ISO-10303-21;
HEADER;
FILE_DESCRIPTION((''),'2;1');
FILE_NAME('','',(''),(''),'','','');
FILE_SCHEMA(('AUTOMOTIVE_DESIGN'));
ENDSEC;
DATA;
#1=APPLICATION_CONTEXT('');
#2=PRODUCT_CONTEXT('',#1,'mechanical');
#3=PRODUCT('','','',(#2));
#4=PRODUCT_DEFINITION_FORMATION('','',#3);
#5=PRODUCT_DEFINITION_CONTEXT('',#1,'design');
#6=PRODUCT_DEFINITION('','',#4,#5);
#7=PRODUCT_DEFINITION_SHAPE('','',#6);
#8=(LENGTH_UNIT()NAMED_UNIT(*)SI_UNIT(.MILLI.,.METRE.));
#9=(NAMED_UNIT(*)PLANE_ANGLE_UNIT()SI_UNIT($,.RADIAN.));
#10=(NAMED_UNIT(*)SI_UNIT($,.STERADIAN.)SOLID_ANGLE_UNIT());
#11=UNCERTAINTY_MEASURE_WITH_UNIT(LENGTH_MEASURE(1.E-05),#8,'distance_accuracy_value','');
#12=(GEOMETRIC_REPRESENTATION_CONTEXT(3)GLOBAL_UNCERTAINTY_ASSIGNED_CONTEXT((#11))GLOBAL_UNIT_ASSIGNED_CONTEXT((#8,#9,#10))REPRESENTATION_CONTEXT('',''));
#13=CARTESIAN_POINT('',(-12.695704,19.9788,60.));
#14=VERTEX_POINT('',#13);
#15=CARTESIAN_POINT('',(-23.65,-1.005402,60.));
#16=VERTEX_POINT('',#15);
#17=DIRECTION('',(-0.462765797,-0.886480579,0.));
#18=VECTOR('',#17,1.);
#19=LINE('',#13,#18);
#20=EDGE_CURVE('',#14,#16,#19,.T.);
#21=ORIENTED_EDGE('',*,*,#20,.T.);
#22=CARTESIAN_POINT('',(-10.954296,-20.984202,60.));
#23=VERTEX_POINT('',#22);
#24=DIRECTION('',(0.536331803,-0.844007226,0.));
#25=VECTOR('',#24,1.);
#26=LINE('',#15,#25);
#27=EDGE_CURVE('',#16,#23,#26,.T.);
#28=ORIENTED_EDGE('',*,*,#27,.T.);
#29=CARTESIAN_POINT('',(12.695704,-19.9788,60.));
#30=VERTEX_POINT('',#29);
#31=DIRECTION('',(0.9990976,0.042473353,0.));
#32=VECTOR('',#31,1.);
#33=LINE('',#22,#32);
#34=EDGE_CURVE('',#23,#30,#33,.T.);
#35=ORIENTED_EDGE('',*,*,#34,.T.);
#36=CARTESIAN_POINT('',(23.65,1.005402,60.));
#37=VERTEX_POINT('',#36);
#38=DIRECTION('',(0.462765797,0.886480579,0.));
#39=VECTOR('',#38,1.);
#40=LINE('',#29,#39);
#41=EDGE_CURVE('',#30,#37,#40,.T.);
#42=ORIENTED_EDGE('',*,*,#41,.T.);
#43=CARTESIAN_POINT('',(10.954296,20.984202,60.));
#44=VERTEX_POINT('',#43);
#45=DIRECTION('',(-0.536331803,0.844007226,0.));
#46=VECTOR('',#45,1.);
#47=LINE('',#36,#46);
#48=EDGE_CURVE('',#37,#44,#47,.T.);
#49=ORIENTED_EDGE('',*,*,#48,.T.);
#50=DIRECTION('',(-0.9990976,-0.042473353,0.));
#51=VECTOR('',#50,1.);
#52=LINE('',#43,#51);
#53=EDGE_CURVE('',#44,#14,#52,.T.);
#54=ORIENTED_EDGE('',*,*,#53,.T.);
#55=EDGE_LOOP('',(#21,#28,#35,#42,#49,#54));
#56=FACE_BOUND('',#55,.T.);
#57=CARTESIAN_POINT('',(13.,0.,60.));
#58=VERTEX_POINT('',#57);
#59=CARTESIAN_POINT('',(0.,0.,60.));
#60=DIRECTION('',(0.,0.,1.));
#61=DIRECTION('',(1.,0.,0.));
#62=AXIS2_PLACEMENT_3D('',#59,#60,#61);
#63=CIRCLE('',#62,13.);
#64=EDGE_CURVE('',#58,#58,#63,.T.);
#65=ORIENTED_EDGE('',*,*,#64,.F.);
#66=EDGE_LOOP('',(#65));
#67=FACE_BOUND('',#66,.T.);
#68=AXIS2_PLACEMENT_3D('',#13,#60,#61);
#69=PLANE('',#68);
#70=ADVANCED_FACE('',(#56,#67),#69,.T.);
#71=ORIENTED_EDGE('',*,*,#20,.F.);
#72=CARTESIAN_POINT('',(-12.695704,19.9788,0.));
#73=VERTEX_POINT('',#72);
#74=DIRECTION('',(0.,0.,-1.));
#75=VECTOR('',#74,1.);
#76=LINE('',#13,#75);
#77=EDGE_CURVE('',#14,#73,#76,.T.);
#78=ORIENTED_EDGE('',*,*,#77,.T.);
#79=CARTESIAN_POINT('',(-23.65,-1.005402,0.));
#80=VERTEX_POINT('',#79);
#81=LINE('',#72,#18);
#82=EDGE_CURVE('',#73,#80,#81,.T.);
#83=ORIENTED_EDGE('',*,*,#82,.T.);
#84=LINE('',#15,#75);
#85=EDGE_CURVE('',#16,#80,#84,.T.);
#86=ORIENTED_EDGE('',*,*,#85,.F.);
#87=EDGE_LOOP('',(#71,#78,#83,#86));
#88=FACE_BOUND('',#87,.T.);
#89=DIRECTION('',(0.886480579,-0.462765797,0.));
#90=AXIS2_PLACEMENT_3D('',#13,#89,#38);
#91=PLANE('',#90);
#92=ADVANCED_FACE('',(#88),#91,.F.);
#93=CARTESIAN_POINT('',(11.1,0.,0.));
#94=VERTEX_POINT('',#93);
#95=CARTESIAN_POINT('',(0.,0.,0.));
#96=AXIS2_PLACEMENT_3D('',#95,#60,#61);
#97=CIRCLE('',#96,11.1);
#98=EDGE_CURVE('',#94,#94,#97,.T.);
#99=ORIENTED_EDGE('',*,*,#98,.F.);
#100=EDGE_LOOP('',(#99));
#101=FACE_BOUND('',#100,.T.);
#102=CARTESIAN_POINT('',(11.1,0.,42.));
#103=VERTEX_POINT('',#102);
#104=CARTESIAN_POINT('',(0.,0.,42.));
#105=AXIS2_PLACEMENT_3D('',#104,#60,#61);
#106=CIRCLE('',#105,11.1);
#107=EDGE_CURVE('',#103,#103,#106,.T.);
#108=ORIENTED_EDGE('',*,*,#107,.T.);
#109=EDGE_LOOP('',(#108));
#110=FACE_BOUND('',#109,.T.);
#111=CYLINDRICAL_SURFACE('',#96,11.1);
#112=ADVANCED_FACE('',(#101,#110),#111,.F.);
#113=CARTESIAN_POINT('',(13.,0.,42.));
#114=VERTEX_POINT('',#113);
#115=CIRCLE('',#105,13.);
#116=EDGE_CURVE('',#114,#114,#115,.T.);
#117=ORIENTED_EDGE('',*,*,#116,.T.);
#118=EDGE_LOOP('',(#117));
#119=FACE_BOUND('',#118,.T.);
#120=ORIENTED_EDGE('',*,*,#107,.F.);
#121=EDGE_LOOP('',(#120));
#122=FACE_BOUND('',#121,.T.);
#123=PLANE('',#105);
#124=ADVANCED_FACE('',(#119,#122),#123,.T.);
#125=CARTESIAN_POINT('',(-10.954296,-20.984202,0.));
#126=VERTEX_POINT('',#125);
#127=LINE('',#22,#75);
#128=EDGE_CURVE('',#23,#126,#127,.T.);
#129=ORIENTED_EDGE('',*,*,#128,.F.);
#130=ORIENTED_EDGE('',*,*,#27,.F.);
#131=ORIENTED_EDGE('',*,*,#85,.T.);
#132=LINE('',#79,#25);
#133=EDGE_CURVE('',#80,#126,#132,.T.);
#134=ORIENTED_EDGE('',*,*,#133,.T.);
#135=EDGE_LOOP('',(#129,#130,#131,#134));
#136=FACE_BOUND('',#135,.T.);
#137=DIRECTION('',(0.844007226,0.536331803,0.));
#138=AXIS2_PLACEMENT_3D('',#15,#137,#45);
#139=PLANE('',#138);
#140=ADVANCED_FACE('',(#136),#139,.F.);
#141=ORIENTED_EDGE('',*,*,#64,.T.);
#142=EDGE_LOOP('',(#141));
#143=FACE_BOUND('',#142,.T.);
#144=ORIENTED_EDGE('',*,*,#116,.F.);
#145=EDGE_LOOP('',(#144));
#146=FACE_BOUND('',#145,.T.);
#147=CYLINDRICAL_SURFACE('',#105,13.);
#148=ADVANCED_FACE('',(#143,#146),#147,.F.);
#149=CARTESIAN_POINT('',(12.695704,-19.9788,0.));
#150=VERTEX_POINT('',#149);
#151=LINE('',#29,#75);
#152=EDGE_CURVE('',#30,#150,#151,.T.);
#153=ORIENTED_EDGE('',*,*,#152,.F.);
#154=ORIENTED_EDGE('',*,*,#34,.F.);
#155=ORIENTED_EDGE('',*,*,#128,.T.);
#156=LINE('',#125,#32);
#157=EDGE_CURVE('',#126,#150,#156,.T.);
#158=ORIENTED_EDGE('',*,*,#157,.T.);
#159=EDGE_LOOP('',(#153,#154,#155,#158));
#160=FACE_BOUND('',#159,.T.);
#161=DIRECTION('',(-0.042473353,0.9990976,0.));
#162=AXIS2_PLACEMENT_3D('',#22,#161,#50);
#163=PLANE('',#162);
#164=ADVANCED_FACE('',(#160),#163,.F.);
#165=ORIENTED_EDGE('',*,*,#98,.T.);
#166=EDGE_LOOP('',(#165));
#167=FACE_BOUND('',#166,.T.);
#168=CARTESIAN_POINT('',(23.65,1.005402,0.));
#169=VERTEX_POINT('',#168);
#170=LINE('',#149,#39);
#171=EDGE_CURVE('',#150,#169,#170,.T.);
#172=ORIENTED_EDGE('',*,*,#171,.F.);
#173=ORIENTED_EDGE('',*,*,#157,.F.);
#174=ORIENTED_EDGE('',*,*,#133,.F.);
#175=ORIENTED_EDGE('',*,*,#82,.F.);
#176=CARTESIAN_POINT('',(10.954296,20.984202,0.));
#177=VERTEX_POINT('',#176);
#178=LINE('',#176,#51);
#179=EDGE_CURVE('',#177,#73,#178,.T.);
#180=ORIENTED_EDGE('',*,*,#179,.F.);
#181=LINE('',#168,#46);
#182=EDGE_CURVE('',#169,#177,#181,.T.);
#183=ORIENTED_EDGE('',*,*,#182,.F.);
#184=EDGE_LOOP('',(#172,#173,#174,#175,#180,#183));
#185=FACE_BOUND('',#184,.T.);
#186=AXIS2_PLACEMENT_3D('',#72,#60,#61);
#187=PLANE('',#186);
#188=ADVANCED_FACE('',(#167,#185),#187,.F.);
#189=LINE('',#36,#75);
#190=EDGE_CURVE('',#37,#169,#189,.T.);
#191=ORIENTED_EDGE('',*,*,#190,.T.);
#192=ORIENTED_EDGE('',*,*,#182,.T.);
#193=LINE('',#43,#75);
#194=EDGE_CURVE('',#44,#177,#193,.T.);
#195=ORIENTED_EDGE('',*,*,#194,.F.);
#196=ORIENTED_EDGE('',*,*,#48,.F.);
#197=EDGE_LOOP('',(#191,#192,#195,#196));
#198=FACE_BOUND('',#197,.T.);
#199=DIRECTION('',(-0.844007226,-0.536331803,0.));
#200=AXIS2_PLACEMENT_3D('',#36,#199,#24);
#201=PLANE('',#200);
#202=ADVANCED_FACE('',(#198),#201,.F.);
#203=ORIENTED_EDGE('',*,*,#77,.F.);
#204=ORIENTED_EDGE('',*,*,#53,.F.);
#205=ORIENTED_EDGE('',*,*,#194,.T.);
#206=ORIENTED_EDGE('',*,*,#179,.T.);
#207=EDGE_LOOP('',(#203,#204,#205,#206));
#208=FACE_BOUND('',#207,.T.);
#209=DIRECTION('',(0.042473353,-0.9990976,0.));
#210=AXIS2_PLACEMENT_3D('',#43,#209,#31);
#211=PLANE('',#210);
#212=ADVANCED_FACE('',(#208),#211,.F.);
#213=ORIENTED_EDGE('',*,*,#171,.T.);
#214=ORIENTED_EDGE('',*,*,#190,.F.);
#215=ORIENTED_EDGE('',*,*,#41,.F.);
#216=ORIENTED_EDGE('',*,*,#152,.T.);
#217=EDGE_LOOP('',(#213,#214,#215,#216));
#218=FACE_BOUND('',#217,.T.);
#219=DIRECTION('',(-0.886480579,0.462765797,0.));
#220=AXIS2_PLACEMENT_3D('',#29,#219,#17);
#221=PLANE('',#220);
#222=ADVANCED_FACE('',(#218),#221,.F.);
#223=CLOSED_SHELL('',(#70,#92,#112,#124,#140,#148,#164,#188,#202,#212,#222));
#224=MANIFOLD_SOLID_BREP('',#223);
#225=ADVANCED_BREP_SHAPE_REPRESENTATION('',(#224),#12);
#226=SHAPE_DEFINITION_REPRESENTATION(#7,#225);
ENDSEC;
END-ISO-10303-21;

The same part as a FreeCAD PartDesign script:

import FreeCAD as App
import Part
import Sketcher
from FreeCAD import Vector


def add_polygon(sketch, points):
    """Adds a closed chain of lines whose ends are joined by coincident constraints."""
    first, n = sketch.GeometryCount, len(points)
    for a, b in zip(points, points[1:] + points[:1]):
        sketch.addGeometry(Part.LineSegment(App.Vector(*a, 0), App.Vector(*b, 0)), False)
    for i in range(n):
        sketch.addConstraint(Sketcher.Constraint("Coincident", first + i, 2, first + (i + 1) % n, 1))

doc = App.newDocument("Part")
body = doc.addObject("PartDesign::Body", "Body")

# Sketch on XY plane
sketch1 = body.newObject("Sketcher::SketchObject", "Sketch")
sketch1.AttachmentSupport = (doc.getObject("XY_Plane"), [""])
sketch1.MapMode = "FlatFace"
add_polygon(sketch1, [(-12.695704, 19.9788), (-23.65, -1.005402), (-10.954296, -20.984202), (12.695704, -19.9788), (23.65, 1.005402), (10.954296, 20.984202)])  # lines 0-5
sketch1.addConstraint(Sketcher.Constraint("Symmetric", 0, 2, 3, 2, -1, 1))
sketch1.addConstraint(Sketcher.Constraint("Symmetric", 1, 2, 4, 2, -1, 1))
sketch1.addConstraint(Sketcher.Constraint("Symmetric", 2, 2, 5, 2, -1, 1))
sketch1.addConstraint(Sketcher.Constraint("Equal", 0, 1))
sketch1.addConstraint(Sketcher.Constraint("Equal", 1, 2))
sketch1.addConstraint(Sketcher.Constraint("DistanceX", 0, 2, 3, 2, 47.3))
sketch1.addConstraint(Sketcher.Constraint("DistanceX", 1, 2, 2, 2, 23.65))
sketch1.addConstraint(Sketcher.Constraint("DistanceY", 2, 2, 4, 2, 40.963002))
sketch1.addConstraint(Sketcher.Constraint("DistanceY", 1, 2, -1, 1, 20.984202))
pad1 = body.newObject("PartDesign::Pad", "Pad")
pad1.Profile = sketch1
pad1.Length = 60

# Sketch on XY plane
sketch2 = body.newObject("Sketcher::SketchObject", "Sketch001")
sketch2.AttachmentSupport = (doc.getObject("XY_Plane"), [""])
sketch2.MapMode = "FlatFace"
sketch2.AttachmentOffset = App.Placement(Vector(0, 0, 60), App.Rotation())
sketch2.addGeometry(Part.Circle(Vector(0, 0, 0), Vector(0, 0, 1), 13), False)
sketch2.addConstraint(Sketcher.Constraint("Coincident", 0, 3, -1, 1))
sketch2.addConstraint(Sketcher.Constraint("Diameter", 0, 26.0))
pocket1 = body.newObject("PartDesign::Pocket", "Pocket")
pocket1.Profile = sketch2
pocket1.Length = 18

# Sketch on XY plane
sketch3 = body.newObject("Sketcher::SketchObject", "Sketch002")
sketch3.AttachmentSupport = (doc.getObject("XY_Plane"), [""])
sketch3.MapMode = "FlatFace"
sketch3.AttachmentOffset = App.Placement(Vector(0, 0, 42), App.Rotation())
sketch3.addGeometry(Part.Circle(Vector(0, 0, 0), Vector(0, 0, 1), 11.1), False)
sketch3.addConstraint(Sketcher.Constraint("Coincident", 0, 3, -1, 1))
sketch3.addConstraint(Sketcher.Constraint("Diameter", 0, 22.2))
pocket2 = body.newObject("PartDesign::Pocket", "Pocket001")
pocket2.Profile = sketch3
pocket2.Type = "ThroughAll"

doc.recompute()
